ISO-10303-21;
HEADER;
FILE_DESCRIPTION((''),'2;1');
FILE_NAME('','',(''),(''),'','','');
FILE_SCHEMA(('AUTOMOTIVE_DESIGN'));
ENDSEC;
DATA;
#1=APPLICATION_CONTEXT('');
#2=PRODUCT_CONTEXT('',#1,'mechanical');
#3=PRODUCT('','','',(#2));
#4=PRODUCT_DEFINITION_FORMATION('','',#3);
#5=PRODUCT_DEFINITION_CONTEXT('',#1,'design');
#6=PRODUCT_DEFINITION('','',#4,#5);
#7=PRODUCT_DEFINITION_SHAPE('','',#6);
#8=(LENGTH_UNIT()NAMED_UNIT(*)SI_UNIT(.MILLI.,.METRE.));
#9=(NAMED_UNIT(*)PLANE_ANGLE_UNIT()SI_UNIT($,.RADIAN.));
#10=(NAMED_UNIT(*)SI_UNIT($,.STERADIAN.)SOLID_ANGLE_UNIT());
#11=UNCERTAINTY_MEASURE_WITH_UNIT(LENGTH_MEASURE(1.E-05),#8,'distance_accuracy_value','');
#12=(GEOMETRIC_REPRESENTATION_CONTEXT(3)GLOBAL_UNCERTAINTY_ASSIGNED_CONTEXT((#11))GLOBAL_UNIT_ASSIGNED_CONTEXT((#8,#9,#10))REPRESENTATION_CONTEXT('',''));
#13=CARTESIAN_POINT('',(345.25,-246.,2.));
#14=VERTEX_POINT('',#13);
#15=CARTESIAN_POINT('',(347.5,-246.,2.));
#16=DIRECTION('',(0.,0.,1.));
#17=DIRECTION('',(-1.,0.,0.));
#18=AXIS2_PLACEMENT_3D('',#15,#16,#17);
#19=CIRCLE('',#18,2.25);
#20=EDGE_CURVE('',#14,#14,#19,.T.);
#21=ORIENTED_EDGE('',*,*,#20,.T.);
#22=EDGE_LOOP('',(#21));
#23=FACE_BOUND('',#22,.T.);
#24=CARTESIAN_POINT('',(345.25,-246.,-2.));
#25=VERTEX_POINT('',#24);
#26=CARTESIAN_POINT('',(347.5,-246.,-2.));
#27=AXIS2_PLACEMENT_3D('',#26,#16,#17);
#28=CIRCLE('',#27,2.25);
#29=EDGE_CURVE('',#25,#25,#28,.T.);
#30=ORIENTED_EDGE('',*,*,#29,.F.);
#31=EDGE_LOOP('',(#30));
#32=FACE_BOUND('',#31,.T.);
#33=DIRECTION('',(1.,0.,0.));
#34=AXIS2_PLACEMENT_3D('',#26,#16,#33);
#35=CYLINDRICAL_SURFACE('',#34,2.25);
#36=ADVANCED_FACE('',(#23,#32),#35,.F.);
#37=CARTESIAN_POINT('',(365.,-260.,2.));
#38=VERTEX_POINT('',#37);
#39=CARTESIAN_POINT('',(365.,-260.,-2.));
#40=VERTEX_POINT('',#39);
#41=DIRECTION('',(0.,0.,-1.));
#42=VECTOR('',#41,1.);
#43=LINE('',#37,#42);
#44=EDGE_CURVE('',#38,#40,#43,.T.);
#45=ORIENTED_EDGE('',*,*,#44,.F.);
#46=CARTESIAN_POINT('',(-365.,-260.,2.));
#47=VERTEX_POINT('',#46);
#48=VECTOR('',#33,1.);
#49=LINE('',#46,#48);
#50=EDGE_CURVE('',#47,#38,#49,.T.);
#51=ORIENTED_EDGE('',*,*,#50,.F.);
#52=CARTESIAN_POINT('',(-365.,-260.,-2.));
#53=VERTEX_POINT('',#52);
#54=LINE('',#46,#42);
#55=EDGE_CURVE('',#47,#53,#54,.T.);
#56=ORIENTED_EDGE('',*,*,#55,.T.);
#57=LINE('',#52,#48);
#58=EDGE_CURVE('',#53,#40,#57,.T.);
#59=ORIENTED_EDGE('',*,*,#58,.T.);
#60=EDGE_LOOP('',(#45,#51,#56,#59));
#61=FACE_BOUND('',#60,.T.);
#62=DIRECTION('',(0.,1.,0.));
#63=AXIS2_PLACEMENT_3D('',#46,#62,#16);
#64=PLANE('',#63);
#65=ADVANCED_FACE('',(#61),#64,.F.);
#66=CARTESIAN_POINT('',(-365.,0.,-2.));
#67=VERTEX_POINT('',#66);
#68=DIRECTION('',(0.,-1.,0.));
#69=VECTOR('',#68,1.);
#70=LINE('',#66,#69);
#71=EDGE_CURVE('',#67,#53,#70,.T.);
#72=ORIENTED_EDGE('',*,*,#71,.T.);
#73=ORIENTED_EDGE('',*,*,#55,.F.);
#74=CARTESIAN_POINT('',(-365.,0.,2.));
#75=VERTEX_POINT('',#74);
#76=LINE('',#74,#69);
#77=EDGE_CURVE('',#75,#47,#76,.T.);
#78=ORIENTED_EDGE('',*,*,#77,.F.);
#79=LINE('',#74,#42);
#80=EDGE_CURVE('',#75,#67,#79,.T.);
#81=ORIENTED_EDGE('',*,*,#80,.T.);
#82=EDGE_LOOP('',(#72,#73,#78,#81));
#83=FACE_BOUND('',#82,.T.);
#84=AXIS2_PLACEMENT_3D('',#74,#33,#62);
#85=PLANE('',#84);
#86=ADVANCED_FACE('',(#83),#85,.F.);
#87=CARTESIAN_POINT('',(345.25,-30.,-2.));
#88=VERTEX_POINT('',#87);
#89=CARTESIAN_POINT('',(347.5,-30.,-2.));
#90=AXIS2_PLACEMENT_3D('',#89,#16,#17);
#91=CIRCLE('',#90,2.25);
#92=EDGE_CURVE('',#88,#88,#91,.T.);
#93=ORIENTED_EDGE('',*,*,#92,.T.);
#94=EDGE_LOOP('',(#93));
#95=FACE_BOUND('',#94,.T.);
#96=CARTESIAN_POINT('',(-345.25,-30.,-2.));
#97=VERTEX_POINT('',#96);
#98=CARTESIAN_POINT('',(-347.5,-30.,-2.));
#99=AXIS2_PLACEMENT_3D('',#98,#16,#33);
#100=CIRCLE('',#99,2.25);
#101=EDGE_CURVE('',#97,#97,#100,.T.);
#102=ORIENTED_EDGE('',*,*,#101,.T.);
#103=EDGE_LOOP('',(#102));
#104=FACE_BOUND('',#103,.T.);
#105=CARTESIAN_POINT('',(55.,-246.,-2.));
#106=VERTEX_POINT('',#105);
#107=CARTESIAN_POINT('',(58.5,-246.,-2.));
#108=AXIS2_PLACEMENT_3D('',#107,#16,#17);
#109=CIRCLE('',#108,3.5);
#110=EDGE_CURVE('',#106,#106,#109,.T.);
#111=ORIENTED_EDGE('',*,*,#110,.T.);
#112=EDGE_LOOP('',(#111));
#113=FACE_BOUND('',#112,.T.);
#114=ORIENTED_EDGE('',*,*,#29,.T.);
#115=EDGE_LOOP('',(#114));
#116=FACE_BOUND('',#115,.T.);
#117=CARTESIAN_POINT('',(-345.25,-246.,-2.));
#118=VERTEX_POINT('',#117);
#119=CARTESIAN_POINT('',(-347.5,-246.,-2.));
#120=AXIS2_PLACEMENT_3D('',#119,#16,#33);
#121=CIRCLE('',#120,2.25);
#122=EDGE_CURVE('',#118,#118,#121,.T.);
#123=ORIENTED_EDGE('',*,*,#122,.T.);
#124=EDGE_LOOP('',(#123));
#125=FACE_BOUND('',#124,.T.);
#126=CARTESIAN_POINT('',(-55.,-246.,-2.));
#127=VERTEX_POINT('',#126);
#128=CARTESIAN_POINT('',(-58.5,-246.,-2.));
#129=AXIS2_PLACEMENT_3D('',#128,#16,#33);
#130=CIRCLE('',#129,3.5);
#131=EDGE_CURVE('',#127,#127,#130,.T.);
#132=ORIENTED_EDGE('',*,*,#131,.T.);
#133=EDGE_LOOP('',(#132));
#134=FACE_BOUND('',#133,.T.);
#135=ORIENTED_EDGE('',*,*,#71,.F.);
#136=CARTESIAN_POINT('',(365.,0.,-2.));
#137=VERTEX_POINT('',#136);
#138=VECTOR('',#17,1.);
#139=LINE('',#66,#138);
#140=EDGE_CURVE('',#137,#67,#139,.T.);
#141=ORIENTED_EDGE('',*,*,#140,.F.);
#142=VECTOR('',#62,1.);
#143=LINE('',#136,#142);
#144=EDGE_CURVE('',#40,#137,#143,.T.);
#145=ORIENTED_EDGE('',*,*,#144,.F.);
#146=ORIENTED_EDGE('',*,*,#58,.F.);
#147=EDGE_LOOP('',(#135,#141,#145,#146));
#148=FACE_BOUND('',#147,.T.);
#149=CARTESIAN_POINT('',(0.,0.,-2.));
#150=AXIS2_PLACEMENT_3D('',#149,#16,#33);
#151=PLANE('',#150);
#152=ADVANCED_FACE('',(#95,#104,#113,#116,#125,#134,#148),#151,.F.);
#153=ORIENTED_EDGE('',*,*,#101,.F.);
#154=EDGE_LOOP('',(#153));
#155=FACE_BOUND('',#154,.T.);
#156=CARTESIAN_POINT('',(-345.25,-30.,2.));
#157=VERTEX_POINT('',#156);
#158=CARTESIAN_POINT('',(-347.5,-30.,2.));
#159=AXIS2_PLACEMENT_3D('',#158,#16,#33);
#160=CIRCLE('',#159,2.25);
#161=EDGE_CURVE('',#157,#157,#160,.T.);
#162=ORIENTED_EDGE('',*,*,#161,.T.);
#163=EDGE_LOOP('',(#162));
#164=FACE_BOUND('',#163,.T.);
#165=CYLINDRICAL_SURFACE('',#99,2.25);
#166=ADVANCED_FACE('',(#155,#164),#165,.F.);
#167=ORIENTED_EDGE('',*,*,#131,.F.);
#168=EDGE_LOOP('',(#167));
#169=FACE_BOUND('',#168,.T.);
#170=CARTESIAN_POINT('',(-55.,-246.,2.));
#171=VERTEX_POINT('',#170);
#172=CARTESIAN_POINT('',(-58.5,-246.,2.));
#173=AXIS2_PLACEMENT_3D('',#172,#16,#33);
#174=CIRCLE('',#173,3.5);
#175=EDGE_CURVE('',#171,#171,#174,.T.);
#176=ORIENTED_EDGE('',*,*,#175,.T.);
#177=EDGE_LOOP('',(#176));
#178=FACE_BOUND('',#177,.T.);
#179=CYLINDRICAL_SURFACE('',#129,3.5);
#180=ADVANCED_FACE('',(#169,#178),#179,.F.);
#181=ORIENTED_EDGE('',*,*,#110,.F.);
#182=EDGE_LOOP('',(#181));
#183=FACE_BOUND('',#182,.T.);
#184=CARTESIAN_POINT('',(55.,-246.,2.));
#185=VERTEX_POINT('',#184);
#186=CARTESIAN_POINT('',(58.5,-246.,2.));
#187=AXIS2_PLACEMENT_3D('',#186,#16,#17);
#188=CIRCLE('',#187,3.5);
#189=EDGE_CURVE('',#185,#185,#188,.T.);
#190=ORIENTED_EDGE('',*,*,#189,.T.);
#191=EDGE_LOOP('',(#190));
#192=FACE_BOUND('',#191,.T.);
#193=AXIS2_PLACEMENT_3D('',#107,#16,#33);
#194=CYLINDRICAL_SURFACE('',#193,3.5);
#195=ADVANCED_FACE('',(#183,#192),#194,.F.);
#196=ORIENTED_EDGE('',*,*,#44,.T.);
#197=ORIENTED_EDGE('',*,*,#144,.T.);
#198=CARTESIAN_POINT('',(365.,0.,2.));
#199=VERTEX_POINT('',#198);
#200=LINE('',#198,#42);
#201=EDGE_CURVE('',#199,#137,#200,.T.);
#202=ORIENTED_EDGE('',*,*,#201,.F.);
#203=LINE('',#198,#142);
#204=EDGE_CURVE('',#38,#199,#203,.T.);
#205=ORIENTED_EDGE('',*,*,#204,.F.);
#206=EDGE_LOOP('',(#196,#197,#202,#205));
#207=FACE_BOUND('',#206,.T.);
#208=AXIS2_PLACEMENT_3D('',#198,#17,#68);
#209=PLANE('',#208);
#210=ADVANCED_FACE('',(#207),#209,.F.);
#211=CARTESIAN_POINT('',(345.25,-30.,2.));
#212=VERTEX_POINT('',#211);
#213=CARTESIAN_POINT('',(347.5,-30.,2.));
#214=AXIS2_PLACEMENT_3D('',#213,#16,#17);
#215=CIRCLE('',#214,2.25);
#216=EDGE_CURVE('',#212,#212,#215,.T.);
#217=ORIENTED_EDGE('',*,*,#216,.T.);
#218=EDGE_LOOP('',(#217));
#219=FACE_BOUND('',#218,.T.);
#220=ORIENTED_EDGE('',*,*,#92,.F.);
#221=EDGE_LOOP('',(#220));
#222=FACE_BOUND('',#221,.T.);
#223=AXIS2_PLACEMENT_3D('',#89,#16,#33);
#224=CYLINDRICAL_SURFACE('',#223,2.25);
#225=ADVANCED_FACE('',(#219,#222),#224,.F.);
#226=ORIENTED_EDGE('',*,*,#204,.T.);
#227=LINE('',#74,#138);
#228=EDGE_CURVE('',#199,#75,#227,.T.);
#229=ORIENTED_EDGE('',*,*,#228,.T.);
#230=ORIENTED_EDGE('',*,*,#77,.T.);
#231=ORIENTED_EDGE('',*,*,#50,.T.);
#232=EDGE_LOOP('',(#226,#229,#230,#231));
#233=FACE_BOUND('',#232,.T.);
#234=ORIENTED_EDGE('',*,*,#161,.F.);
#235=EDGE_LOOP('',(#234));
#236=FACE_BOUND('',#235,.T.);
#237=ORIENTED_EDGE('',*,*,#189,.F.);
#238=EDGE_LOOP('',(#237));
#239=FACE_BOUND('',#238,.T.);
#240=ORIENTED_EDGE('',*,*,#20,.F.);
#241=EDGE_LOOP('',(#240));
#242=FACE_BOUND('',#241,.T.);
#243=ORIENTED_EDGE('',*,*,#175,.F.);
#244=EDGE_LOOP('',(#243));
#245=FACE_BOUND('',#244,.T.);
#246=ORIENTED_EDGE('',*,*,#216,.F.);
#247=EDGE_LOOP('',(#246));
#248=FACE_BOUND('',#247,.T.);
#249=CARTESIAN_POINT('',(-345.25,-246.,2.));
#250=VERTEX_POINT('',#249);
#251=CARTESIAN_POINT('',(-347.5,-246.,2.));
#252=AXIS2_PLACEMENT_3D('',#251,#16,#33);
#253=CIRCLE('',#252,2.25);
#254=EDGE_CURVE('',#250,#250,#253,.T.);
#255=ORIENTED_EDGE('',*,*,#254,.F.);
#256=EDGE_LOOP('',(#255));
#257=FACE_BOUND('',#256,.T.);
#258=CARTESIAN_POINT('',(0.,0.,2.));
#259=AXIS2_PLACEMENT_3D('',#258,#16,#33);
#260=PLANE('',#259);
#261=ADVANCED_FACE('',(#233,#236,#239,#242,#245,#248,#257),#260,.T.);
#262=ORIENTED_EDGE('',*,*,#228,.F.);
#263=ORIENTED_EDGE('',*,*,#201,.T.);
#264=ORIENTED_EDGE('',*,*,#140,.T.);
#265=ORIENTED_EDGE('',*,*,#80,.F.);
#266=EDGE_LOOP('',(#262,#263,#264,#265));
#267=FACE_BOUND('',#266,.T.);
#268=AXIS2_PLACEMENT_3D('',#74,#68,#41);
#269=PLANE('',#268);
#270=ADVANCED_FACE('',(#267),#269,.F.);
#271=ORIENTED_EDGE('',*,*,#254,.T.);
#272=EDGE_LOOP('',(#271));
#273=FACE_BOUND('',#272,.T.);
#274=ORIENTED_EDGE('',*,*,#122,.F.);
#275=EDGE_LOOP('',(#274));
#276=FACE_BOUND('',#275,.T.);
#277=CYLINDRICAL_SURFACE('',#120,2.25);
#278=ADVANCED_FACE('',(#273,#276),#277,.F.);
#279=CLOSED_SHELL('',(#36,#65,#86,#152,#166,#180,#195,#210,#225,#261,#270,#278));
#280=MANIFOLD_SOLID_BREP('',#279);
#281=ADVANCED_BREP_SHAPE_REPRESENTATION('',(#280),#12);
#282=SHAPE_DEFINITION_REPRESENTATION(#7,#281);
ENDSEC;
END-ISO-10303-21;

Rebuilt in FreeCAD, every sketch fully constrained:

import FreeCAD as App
import Part
import Sketcher
from FreeCAD import Vector
Q = App.Units.Quantity

doc = App.newDocument("Part")
params = doc.addObject("Spreadsheet::Sheet", "Params")
for row, (alias, value) in enumerate([
    ("sketch1_width", "730 mm"),
    ("sketch1_height", "260 mm"),
    ("pad1_length", "4 mm"),
    ("sketch2_diameter", "7 mm"),
    ("sketch2_diameter2", "4.5 mm"),
], start=1):
    params.set(f"A{row}", alias)
    params.set(f"B{row}", "=" + value)
    params.setAlias(f"B{row}", alias)

body = doc.addObject("PartDesign::Body", "Body")

sketch1 = body.newObject("Sketcher::SketchObject", "Sketch")
sketch1.AttachmentSupport = (doc.getObject("XY_Plane"), [""])
sketch1.MapMode = "FlatFace"
sketch1.addGeometry([
    Part.LineSegment(Vector(-365, 0, 0), Vector(-365, -260, 0)),
    Part.LineSegment(Vector(-365, -260, 0), Vector(365, -260, 0)),
    Part.LineSegment(Vector(365, -260, 0), Vector(365, 0, 0)),
    Part.LineSegment(Vector(365, 0, 0), Vector(-365, 0, 0)),
], False)
sketch1.addConstraint([
    Sketcher.Constraint("Coincident", 0, 2, 1, 1),
    Sketcher.Constraint("Coincident", 1, 2, 2, 1),
    Sketcher.Constraint("Coincident", 2, 2, 3, 1),
    Sketcher.Constraint("Coincident", 3, 2, 0, 1),
    Sketcher.Constraint("Vertical", 0),
    Sketcher.Constraint("Horizontal", 1),
    Sketcher.Constraint("Vertical", 2),
    Sketcher.Constraint("Horizontal", 3),
    Sketcher.Constraint("Symmetric", 2, 2, 3, 2, -1, 1),
    Sketcher.Constraint("DistanceX", 1, 1, 1, 2, Q("730 mm")),
    Sketcher.Constraint("DistanceY", 0, 2, 0, 1, Q("260 mm")),
])
sketch1.setExpression("Constraints[9]", "Params.sketch1_width")
sketch1.setExpression("Constraints[10]", "Params.sketch1_height")
pad1 = body.newObject("PartDesign::Pad", "Pad")
pad1.Profile = sketch1
pad1.setExpression("Length", "Params.pad1_length")
pad1.Midplane = True

sketch2 = body.newObject("Sketcher::SketchObject", "Sketch001")
sketch2.AttachmentSupport = (doc.getObject("XY_Plane"), [""])
sketch2.MapMode = "FlatFace"
sketch2.AttachmentOffset = App.Placement(Vector(0, 0, 2), App.Rotation())
sketch2.addGeometry([
    Part.Circle(Vector(-347.5, -30, 0), Vector(0, 0, 1), 2.25),
    Part.Circle(Vector(-347.5, -246, 0), Vector(0, 0, 1), 2.25),
    Part.Circle(Vector(-58.5, -246, 0), Vector(0, 0, 1), 3.5),
    Part.Circle(Vector(58.5, -246, 0), Vector(0, 0, 1), 3.5),
    Part.Circle(Vector(347.5, -246, 0), Vector(0, 0, 1), 2.25),
    Part.Circle(Vector(347.5, -30, 0), Vector(0, 0, 1), 2.25),
], False)
sketch2.addConstraint([
    Sketcher.Constraint("Equal", 0, 1),
    Sketcher.Constraint("Equal", 2, 3),
    Sketcher.Constraint("Equal", 1, 4),
    Sketcher.Constraint("Equal", 4, 5),
    Sketcher.Constraint("Symmetric", 2, 3, 3, 3, -2),
    Sketcher.Constraint("Symmetric", 1, 3, 4, 3, -2),
    Sketcher.Constraint("Symmetric", 0, 3, 5, 3, -2),
    Sketcher.Constraint("Horizontal", 1, 3, 2, 3),
    Sketcher.Constraint("Vertical", 0, 3, 1, 3),
    Sketcher.Constraint("Diameter", 2, Q("7 mm")),
    Sketcher.Constraint("Diameter", 0, Q("4.5 mm")),
    Sketcher.Constraint("DistanceY", 0, 3, -1, 1, Q("30 mm")),
    Sketcher.Constraint("DistanceY", 1, 3, -1, 1, Q("246 mm")),
    Sketcher.Constraint("DistanceX", 1, 3, 2, 3, Q("289 mm")),
    Sketcher.Constraint("DistanceX", 2, 3, 3, 3, Q("117 mm")),
])
sketch2.setExpression("Constraints[9]", "Params.sketch2_diameter")
sketch2.setExpression("Constraints[10]", "Params.sketch2_diameter2")
pocket1 = body.newObject("PartDesign::Pocket", "Pocket")
pocket1.Profile = sketch2
pocket1.Type = "ThroughAll"

doc.recompute()
